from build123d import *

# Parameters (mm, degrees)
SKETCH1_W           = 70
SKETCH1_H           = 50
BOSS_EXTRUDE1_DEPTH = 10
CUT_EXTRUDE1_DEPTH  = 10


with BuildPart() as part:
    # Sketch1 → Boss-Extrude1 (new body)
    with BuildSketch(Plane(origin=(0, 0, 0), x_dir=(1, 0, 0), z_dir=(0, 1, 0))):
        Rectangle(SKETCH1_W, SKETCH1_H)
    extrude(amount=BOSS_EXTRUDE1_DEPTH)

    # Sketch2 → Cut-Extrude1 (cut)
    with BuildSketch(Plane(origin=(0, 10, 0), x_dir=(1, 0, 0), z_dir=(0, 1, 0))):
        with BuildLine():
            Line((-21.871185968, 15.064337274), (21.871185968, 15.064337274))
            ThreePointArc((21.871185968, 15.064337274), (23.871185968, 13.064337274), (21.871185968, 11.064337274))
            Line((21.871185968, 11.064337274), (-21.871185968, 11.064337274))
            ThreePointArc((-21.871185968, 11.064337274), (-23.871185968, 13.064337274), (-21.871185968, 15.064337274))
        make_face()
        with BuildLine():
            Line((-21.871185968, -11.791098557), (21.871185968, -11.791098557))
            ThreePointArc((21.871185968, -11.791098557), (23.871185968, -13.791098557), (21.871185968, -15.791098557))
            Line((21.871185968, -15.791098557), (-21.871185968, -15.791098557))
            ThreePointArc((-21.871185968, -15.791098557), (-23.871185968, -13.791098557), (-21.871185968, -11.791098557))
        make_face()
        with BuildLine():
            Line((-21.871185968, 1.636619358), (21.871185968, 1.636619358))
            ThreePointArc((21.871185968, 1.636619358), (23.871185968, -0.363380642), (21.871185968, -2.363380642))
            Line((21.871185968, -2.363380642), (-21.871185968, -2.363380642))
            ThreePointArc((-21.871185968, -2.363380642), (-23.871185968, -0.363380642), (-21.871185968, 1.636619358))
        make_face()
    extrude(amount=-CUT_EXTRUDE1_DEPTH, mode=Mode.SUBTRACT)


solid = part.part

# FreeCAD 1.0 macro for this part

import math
import FreeCAD as App
import Part
import Sketcher


def add_polygon(sketch, points):
    """Adds a closed chain of lines whose ends are joined by coincident constraints."""
    first, n = sketch.GeometryCount, len(points)
    for a, b in zip(points, points[1:] + points[:1]):
        sketch.addGeometry(Part.LineSegment(App.Vector(*a, 0), App.Vector(*b, 0)), False)
    for i in range(n):
        sketch.addConstraint(Sketcher.Constraint("Coincident", first + i, 2, first + (i + 1) % n, 1))

doc = App.newDocument("Part")
body = doc.addObject("PartDesign::Body", "Body")

# Sketch on XZ plane
sketch1 = doc.addObject("Sketcher::SketchObject", "Sketch")
body.addObject(sketch1)
sketch1.AttachmentSupport = (doc.XZ_Plane, [""])
sketch1.MapMode = "FlatFace"
add_polygon(sketch1, [(-35, -25), (-35, 25), (35, 25), (35, -25)])  # lines 0-3
sketch1.addConstraint([
    Sketcher.Constraint("Vertical", 0),
    Sketcher.Constraint("Horizontal", 1),
    Sketcher.Constraint("Vertical", 2),
    Sketcher.Constraint("Horizontal", 3),
    Sketcher.Constraint("Symmetric", 0, 2, 2, 2, -1, 1),
    Sketcher.Constraint("DistanceX", 1, 1, 1, 2, 70.0),
    Sketcher.Constraint("DistanceY", 0, 1, 0, 2, 50.0),
])
pad1 = doc.addObject("PartDesign::Pad", "Pad")
body.addObject(pad1)
pad1.Profile = sketch1
pad1.Length = 10
pad1.Reversed = True

# Sketch on XZ plane
sketch2 = doc.addObject("Sketcher::SketchObject", "Sketch001")
body.addObject(sketch2)
sketch2.AttachmentSupport = (doc.XZ_Plane, [""])
sketch2.MapMode = "FlatFace"
sketch2.AttachmentOffset = App.Placement(App.Vector(0, 0, -10), App.Rotation())
sketch2.addGeometry([
    Part.LineSegment(App.Vector(21.871186, -15.064337, 0), App.Vector(-21.871186, -15.064337, 0)),  # 0
    Part.ArcOfCircle(Part.Circle(App.Vector(-21.871186, -13.064337, 0), App.Vector(0, 0, 1), 2), math.radians(90), math.radians(270)),  # 1
    Part.LineSegment(App.Vector(-21.871186, -11.064337, 0), App.Vector(21.871186, -11.064337, 0)),  # 2
    Part.ArcOfCircle(Part.Circle(App.Vector(21.871186, -13.064337, 0), App.Vector(0, 0, 1), 2), math.radians(-90), math.radians(90)),  # 3
    Part.LineSegment(App.Vector(21.871186, 11.791099, 0), App.Vector(-21.871186, 11.791099, 0)),  # 4
    Part.ArcOfCircle(Part.Circle(App.Vector(-21.871186, 13.791099, 0), App.Vector(0, 0, 1), 2), math.radians(90), math.radians(270)),  # 5
    Part.LineSegment(App.Vector(-21.871186, 15.791099, 0), App.Vector(21.871186, 15.791099, 0)),  # 6
    Part.ArcOfCircle(Part.Circle(App.Vector(21.871186, 13.791099, 0), App.Vector(0, 0, 1), 2), math.radians(-90), math.radians(90)),  # 7
    Part.LineSegment(App.Vector(21.871186, -1.636619, 0), App.Vector(-21.871186, -1.636619, 0)),  # 8
    Part.ArcOfCircle(Part.Circle(App.Vector(-21.871186, 0.363381, 0), App.Vector(0, 0, 1), 2), math.radians(90), math.radians(270)),  # 9
    Part.LineSegment(App.Vector(-21.871186, 2.363381, 0), App.Vector(21.871186, 2.363381, 0)),  # 10
    Part.ArcOfCircle(Part.Circle(App.Vector(21.871186, 0.363381, 0), App.Vector(0, 0, 1), 2), math.radians(-90), math.radians(90)),  # 11
], False)
sketch2.addConstraint([
    Sketcher.Constraint("Tangent", 0, 2, 1, 2),
    Sketcher.Constraint("Tangent", 1, 1, 2, 1),
    Sketcher.Constraint("Tangent", 2, 2, 3, 2),
    Sketcher.Constraint("Tangent", 3, 1, 0, 1),
    Sketcher.Constraint("Tangent", 4, 2, 5, 2),
    Sketcher.Constraint("Tangent", 5, 1, 6, 1),
    Sketcher.Constraint("Tangent", 6, 2, 7, 2),
    Sketcher.Constraint("Tangent", 7, 1, 4, 1),
    Sketcher.Constraint("Tangent", 8, 2, 9, 2),
    Sketcher.Constraint("Tangent", 9, 1, 10, 1),
    Sketcher.Constraint("Tangent", 10, 2, 11, 2),
    Sketcher.Constraint("Tangent", 11, 1, 8, 1),
    Sketcher.Constraint("Horizontal", 0),
    Sketcher.Constraint("Horizontal", 2),
    Sketcher.Constraint("Horizontal", 4),
    Sketcher.Constraint("Horizontal", 6),
    Sketcher.Constraint("Horizontal", 8),
    Sketcher.Constraint("Horizontal", 10),
    Sketcher.Constraint("Equal", 3, 5),
    Sketcher.Constraint("Equal", 7, 9),
    Sketcher.Constraint("Vertical", 1, 3, 5, 3),
    Sketcher.Constraint("Vertical", 3, 3, 7, 3),
    Sketcher.Constraint("Vertical", 5, 3, 9, 3),
    Sketcher.Constraint("Vertical", 7, 3, 11, 3),
    Sketcher.Constraint("Radius", 1, 2.0),
    Sketcher.Constraint("DistanceX", 0, 2, 0, 1, 43.742372),
    Sketcher.Constraint("DistanceY", -1, 1, 5, 3, 13.791099),
    Sketcher.Constraint("DistanceY", -1, 1, 9, 3, 0.363381),
    Sketcher.Constraint("DistanceX", 1, 3, -1, 1, 21.871186),
    Sketcher.Constraint("DistanceY", 1, 3, -1, 1, 13.064337),
])
pocket1 = doc.addObject("PartDesign::Pocket", "Pocket")
body.addObject(pocket1)
pocket1.Profile = sketch2
pocket1.Length = 10
pocket1.Reversed = True

doc.recompute()
